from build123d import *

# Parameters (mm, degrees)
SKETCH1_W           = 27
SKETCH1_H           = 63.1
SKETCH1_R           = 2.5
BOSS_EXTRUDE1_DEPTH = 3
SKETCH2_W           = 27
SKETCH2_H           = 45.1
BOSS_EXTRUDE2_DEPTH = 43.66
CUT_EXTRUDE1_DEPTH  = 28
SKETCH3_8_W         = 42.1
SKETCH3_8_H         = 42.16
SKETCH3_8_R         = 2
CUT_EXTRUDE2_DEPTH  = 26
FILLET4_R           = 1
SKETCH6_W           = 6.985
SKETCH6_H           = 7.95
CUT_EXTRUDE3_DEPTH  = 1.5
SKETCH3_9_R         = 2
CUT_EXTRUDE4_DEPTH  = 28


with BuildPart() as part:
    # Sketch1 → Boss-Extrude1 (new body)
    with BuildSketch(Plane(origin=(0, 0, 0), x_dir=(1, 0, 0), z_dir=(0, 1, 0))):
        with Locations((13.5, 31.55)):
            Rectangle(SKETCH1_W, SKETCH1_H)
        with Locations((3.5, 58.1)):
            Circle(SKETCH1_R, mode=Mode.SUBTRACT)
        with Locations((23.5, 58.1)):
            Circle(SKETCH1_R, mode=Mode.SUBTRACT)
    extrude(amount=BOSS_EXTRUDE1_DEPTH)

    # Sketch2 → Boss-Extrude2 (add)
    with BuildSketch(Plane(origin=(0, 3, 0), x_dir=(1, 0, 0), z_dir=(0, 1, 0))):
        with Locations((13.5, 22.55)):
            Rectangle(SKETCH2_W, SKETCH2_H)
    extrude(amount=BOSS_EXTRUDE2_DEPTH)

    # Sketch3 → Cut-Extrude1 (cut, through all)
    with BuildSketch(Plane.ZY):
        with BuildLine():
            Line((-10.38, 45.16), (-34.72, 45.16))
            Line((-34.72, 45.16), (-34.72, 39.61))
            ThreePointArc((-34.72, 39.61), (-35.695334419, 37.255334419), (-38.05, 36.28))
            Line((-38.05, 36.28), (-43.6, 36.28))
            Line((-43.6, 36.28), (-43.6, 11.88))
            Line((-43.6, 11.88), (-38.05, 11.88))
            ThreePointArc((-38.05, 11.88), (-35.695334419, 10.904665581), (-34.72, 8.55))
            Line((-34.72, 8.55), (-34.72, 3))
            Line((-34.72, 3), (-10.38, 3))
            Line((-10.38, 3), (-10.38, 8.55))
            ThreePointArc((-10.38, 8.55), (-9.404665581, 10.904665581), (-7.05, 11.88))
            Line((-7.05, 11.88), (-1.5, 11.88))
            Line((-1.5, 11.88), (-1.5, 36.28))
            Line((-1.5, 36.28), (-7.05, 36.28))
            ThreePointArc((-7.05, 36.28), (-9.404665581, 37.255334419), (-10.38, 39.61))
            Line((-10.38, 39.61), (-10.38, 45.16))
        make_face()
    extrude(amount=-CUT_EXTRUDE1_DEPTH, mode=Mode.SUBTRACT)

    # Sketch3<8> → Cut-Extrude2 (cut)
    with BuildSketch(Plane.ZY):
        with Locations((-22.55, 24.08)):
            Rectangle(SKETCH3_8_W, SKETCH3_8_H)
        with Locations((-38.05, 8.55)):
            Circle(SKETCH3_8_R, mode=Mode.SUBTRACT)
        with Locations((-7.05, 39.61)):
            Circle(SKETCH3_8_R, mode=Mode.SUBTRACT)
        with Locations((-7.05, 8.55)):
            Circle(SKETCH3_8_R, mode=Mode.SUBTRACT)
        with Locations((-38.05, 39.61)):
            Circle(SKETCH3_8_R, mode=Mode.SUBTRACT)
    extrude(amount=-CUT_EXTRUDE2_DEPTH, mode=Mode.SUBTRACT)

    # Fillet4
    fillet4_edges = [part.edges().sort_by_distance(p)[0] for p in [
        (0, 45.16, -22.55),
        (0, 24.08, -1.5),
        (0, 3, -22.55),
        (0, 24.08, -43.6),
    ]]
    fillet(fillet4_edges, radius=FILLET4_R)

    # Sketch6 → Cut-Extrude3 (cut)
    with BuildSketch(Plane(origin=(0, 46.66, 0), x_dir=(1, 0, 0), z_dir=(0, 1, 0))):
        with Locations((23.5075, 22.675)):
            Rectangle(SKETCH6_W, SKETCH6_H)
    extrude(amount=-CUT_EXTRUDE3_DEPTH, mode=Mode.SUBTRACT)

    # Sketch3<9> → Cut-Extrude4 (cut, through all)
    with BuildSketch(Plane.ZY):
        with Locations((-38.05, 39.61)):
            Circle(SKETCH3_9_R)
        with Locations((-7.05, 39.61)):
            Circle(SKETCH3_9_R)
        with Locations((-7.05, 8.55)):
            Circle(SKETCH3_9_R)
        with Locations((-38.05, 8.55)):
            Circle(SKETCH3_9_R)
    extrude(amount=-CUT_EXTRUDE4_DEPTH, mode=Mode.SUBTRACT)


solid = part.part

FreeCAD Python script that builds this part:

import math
import FreeCAD as App
import Part
import Sketcher
from FreeCAD import Vector
Q = App.Units.Quantity


def edges_at(feature, points):
    """Names of the edges that pass closest to the given points."""
    edges = feature.Shape.Edges
    near = lambda p: min(range(len(edges)), key=lambda i: edges[i].distToShape(Part.Vertex(*p))[0])
    return sorted({f"Edge{near(p) + 1}" for p in points})


def add_polygon(sketch, points):
    """Adds a closed chain of lines whose ends are joined by coincident constraints."""
    first, n = sketch.GeometryCount, len(points)
    for a, b in zip(points, points[1:] + points[:1]):
        sketch.addGeometry(Part.LineSegment(App.Vector(*a, 0), App.Vector(*b, 0)), False)
    for i in range(n):
        sketch.addConstraint(Sketcher.Constraint("Coincident", first + i, 2, first + (i + 1) % n, 1))

doc = App.newDocument("Part")
params = doc.addObject("Spreadsheet::Sheet", "Params")
for row, (alias, value) in enumerate([
    ("sketch1_diameter", "5 mm"),
    ("sketch1_width", "27 mm"),
    ("sketch1_height", "63.1 mm"),
    ("pad1_length", "3 mm"),
    ("sketch2_width", "27 mm"),
    ("sketch2_height", "45.1 mm"),
    ("pad2_length", "43.66 mm"),
    ("sketch3_radius", "3.33 mm"),
    ("sketch3_width", "24.4 mm"),
    ("sketch3_width2", "5.55 mm"),
    ("sketch4_diameter", "4 mm"),
    ("sketch4_height", "42.1 mm"),
    ("sketch4_width", "42.16 mm"),
    ("pocket2_length", "26 mm"),
    ("fillet_radius", "1 mm"),
    ("sketch5_height", "7.95 mm"),
    ("pocket3_length", "1.5 mm"),
    ("sketch6_diameter", "4 mm"),
], start=1):
    params.set(f"A{row}", alias)
    params.set(f"B{row}", "=" + value)
    params.setAlias(f"B{row}", alias)

body = doc.addObject("PartDesign::Body", "Body")

sketch1 = body.newObject("Sketcher::SketchObject", "Sketch")
sketch1.AttachmentSupport = (doc.getObject("XZ_Plane"), [""])
sketch1.MapMode = "FlatFace"
add_polygon(sketch1, [(0, -63.1), (0, 0), (27, 0), (27, -63.1)])
sketch1.addGeometry(Part.Circle(Vector(3.5, -58.1, 0), Vector(0, 0, 1), 2.5), False)
sketch1.addGeometry(Part.Circle(Vector(23.5, -58.1, 0), Vector(0, 0, 1), 2.5), False)
sketch1.addConstraint([
    Sketcher.Constraint("Vertical", 0),
    Sketcher.Constraint("Horizontal", 1),
    Sketcher.Constraint("Vertical", 2),
    Sketcher.Constraint("Horizontal", 3),
    Sketcher.Constraint("Coincident", 0, 2, -1, 1),
    Sketcher.Constraint("Equal", 4, 5),
    Sketcher.Constraint("Horizontal", 4, 3, 5, 3),
    Sketcher.Constraint("Diameter", 4, Q("5 mm")),
    Sketcher.Constraint("DistanceX", 1, 1, 1, 2, Q("27 mm")),
    Sketcher.Constraint("DistanceY", 0, 1, 0, 2, Q("63.1 mm")),
    Sketcher.Constraint("DistanceX", 4, 3, 5, 3, Q("20 mm")),
    Sketcher.Constraint("DistanceY", 2, 2, 5, 3, Q("5 mm")),
    Sketcher.Constraint("DistanceX", -1, 1, 4, 3, Q("3.5 mm")),
])
sketch1.setExpression("Constraints[11]", "Params.sketch1_diameter")
sketch1.setExpression("Constraints[12]", "Params.sketch1_width")
sketch1.setExpression("Constraints[13]", "Params.sketch1_height")
pad1 = body.newObject("PartDesign::Pad", "Pad")
pad1.Profile = sketch1
pad1.setExpression("Length", "Params.pad1_length")
pad1.Reversed = True

sketch2 = body.newObject("Sketcher::SketchObject", "Sketch001")
sketch2.AttachmentSupport = (doc.getObject("XZ_Plane"), [""])
sketch2.MapMode = "FlatFace"
sketch2.AttachmentOffset = App.Placement(Vector(0, 0, -3), App.Rotation())
add_polygon(sketch2, [(0, -45.1), (0, 0), (27, 0), (27, -45.1)])
sketch2.addConstraint([
    Sketcher.Constraint("Vertical", 0),
    Sketcher.Constraint("Horizontal", 1),
    Sketcher.Constraint("Vertical", 2),
    Sketcher.Constraint("Horizontal", 3),
    Sketcher.Constraint("Coincident", 0, 2, -1, 1),
    Sketcher.Constraint("DistanceX", 1, 1, 1, 2, Q("27 mm")),
    Sketcher.Constraint("DistanceY", 0, 1, 0, 2, Q("45.1 mm")),
])
sketch2.setExpression("Constraints[9]", "Params.sketch2_width")
sketch2.setExpression("Constraints[10]", "Params.sketch2_height")
pad2 = body.newObject("PartDesign::Pad", "Pad001")
pad2.Profile = sketch2
pad2.setExpression("Length", "Params.pad2_length")
pad2.Reversed = True

sketch3 = body.newObject("Sketcher::SketchObject", "Sketch002")
sketch3.AttachmentSupport = (doc.getObject("YZ_Plane"), [""])
sketch3.MapMode = "FlatFace"
sketch3.addGeometry([
    Part.LineSegment(Vector(45.16, -10.38, 0), Vector(45.16, -34.72, 0)),
    Part.LineSegment(Vector(45.16, -34.72, 0), Vector(39.61, -34.72, 0)),
    Part.ArcOfCircle(Part.Circle(Vector(39.61, -38.05, 0), Vector(0, 0, 1), 3.33), math.radians(90), math.radians(180)),
    Part.LineSegment(Vector(36.28, -38.05, 0), Vector(36.28, -43.6, 0)),
    Part.LineSegment(Vector(36.28, -43.6, 0), Vector(11.88, -43.6, 0)),
    Part.LineSegment(Vector(11.88, -43.6, 0), Vector(11.88, -38.05, 0)),
    Part.ArcOfCircle(Part.Circle(Vector(8.55, -38.05, 0), Vector(0, 0, 1), 3.33), math.radians(0), math.radians(90)),
    Part.LineSegment(Vector(8.55, -34.72, 0), Vector(3, -34.72, 0)),
    Part.LineSegment(Vector(3, -34.72, 0), Vector(3, -10.38, 0)),
    Part.LineSegment(Vector(3, -10.38, 0), Vector(8.55, -10.38, 0)),
    Part.ArcOfCircle(Part.Circle(Vector(8.55, -7.05, 0), Vector(0, 0, 1), 3.33), math.radians(-90), math.radians(0)),
    Part.LineSegment(Vector(11.88, -7.05, 0), Vector(11.88, -1.5, 0)),
    Part.LineSegment(Vector(11.88, -1.5, 0), Vector(36.28, -1.5, 0)),
    Part.LineSegment(Vector(36.28, -1.5, 0), Vector(36.28, -7.05, 0)),
    Part.ArcOfCircle(Part.Circle(Vector(39.61, -7.05, 0), Vector(0, 0, 1), 3.33), math.radians(-180), math.radians(-90)),
    Part.LineSegment(Vector(39.61, -10.38, 0), Vector(45.16, -10.38, 0)),
], False)
sketch3.addConstraint([
    Sketcher.Constraint("Coincident", 0, 2, 1, 1),
    Sketcher.Constraint("Tangent", 1, 2, 2, 1),
    Sketcher.Constraint("Tangent", 2, 2, 3, 1),
    Sketcher.Constraint("Coincident", 3, 2, 4, 1),
    Sketcher.Constraint("Coincident", 4, 2, 5, 1),
    Sketcher.Constraint("Tangent", 5, 2, 6, 1),
    Sketcher.Constraint("Tangent", 6, 2, 7, 1),
    Sketcher.Constraint("Coincident", 7, 2, 8, 1),
    Sketcher.Constraint("Coincident", 8, 2, 9, 1),
    Sketcher.Constraint("Tangent", 9, 2, 10, 1),
    Sketcher.Constraint("Tangent", 10, 2, 11, 1),
    Sketcher.Constraint("Coincident", 11, 2, 12, 1),
    Sketcher.Constraint("Coincident", 12, 2, 13, 1),
    Sketcher.Constraint("Tangent", 13, 2, 14, 1),
    Sketcher.Constraint("Tangent", 14, 2, 15, 1),
    Sketcher.Constraint("Coincident", 15, 2, 0, 1),
    Sketcher.Constraint("Vertical", 0),
    Sketcher.Constraint("Horizontal", 1),
    Sketcher.Constraint("Vertical", 3),
    Sketcher.Constraint("Horizontal", 4),
    Sketcher.Constraint("Vertical", 5),
    Sketcher.Constraint("Horizontal", 7),
    Sketcher.Constraint("Vertical", 8),
    Sketcher.Constraint("Horizontal", 9),
    Sketcher.Constraint("Vertical", 11),
    Sketcher.Constraint("Horizontal", 12),
    Sketcher.Constraint("Vertical", 13),
    Sketcher.Constraint("Horizontal", 15),
    Sketcher.Constraint("Equal", 2, 6),
    Sketcher.Constraint("Equal", 6, 10),
    Sketcher.Constraint("Equal", 10, 14),
    Sketcher.Constraint("Horizontal", 2, 3, 6, 3),
    Sketcher.Constraint("Horizontal", 10, 3, 14, 3),
    Sketcher.Constraint("Vertical", 6, 3, 10, 3),
    Sketcher.Constraint("Vertical", 2, 3, 14, 3),
    Sketcher.Constraint("Equal", 1, 7),
    Sketcher.Constraint("Equal", 15, 3),
    Sketcher.Constraint("Equal", 5, 11),
    Sketcher.Constraint("Radius", 2, Q("3.33 mm")),
    Sketcher.Constraint("DistanceX", 4, 2, 4, 1, Q("24.4 mm")),
    Sketcher.Constraint("DistanceX", -1, 1, 7, 2, Q("3 mm")),
    Sketcher.Constraint("DistanceY", 6, 3, 10, 3, Q("31 mm")),
    Sketcher.Constraint("DistanceX", 1, 2, 1, 1, Q("5.55 mm")),
    Sketcher.Constraint("DistanceY", 3, 2, -1, 1, Q("43.6 mm")),
])
sketch3.setExpression("Constraints[38]", "Params.sketch3_radius")
sketch3.setExpression("Constraints[39]", "Params.sketch3_width")
sketch3.setExpression("Constraints[42]", "Params.sketch3_width2")
pocket1 = body.newObject("PartDesign::Pocket", "Pocket")
pocket1.Profile = sketch3
pocket1.Type = "ThroughAll"
pocket1.Reversed = True

sketch4 = body.newObject("Sketcher::SketchObject", "Sketch003")
sketch4.AttachmentSupport = (doc.getObject("YZ_Plane"), [""])
sketch4.MapMode = "FlatFace"
add_polygon(sketch4, [(45.16, -43.6), (3, -43.6), (3, -1.5), (45.16, -1.5)])
sketch4.addGeometry(Part.Circle(Vector(8.55, -38.05, 0), Vector(0, 0, 1), 2), False)
sketch4.addGeometry(Part.Circle(Vector(8.55, -7.05, 0), Vector(0, 0, 1), 2), False)
sketch4.addGeometry(Part.Circle(Vector(39.61, -38.05, 0), Vector(0, 0, 1), 2), False)
sketch4.addGeometry(Part.Circle(Vector(39.61, -7.05, 0), Vector(0, 0, 1), 2), False)
sketch4.addConstraint([
    Sketcher.Constraint("Horizontal", 0),
    Sketcher.Constraint("Vertical", 1),
    Sketcher.Constraint("Horizontal", 2),
    Sketcher.Constraint("Vertical", 3),
    Sketcher.Constraint("Equal", 4, 5),
    Sketcher.Constraint("Equal", 5, 6),
    Sketcher.Constraint("Equal", 6, 7),
    Sketcher.Constraint("Horizontal", 4, 3, 6, 3),
    Sketcher.Constraint("Horizontal", 5, 3, 7, 3),
    Sketcher.Constraint("Vertical", 4, 3, 5, 3),
    Sketcher.Constraint("Vertical", 6, 3, 7, 3),
    Sketcher.Constraint("Diameter", 4, Q("4 mm")),
    Sketcher.Constraint("DistanceY", 1, 1, 1, 2, Q("42.1 mm")),
    Sketcher.Constraint("DistanceX", -1, 1, 0, 2, Q("3 mm")),
    Sketcher.Constraint("DistanceY", 4, 3, 5, 3, Q("31 mm")),
    Sketcher.Constraint("DistanceX", 0, 2, 0, 1, Q("42.16 mm")),
    Sketcher.Constraint("DistanceY", 0, 2, -1, 1, Q("43.6 mm")),
    Sketcher.Constraint("DistanceX", -1, 1, 4, 3, Q("8.55 mm")),
    Sketcher.Constraint("DistanceY", 4, 3, -1, 1, Q("38.05 mm")),
    Sketcher.Constraint("DistanceX", -1, 1, 6, 3, Q("39.61 mm")),
])
sketch4.setExpression("Constraints[15]", "Params.sketch4_diameter")
sketch4.setExpression("Constraints[16]", "Params.sketch4_height")
sketch4.setExpression("Constraints[19]", "Params.sketch4_width")
pocket2 = body.newObject("PartDesign::Pocket", "Pocket001")
pocket2.Profile = sketch4
pocket2.setExpression("Length", "Params.pocket2_length")
pocket2.Reversed = True
doc.recompute()

fillet = body.newObject("PartDesign::Fillet", "Fillet")
fillet.Base = (pocket2, edges_at(pocket2, [
    (0, 45.16, -22.55),
    (0, 24.08, -1.5),
    (0, 3, -22.55),
    (0, 24.08, -43.6),
]))
fillet.setExpression("Radius", "Params.fillet_radius")

sketch5 = body.newObject("Sketcher::SketchObject", "Sketch004")
sketch5.AttachmentSupport = (doc.getObject("XZ_Plane"), [""])
sketch5.MapMode = "FlatFace"
sketch5.AttachmentOffset = App.Placement(Vector(0, 0, -46.66), App.Rotation())
add_polygon(sketch5, [(20.015, -26.65), (20.015, -18.7), (27, -18.7), (27, -26.65)])
sketch5.addConstraint([
    Sketcher.Constraint("Vertical", 0),
    Sketcher.Constraint("Horizontal", 1),
    Sketcher.Constraint("Vertical", 2),
    Sketcher.Constraint("Horizontal", 3),
    Sketcher.Constraint("DistanceX", -1, 1, 1, 2, Q("27 mm")),
    Sketcher.Constraint("DistanceY", 0, 1, 0, 2, Q("7.95 mm")),
    Sketcher.Constraint("DistanceY", 0, 2, -1, 1, Q("18.7 mm")),
    Sketcher.Constraint("DistanceX", 1, 1, 1, 2, Q("6.985 mm")),
])
sketch5.setExpression("Constraints[9]", "Params.sketch5_height")
pocket3 = body.newObject("PartDesign::Pocket", "Pocket002")
pocket3.Profile = sketch5
pocket3.setExpression("Length", "Params.pocket3_length")
pocket3.Reversed = True

sketch6 = body.newObject("Sketcher::SketchObject", "Sketch005")
sketch6.AttachmentSupport = (doc.getObject("YZ_Plane"), [""])
sketch6.MapMode = "FlatFace"
sketch6.addGeometry([
    Part.Circle(Vector(39.61, -38.05, 0), Vector(0, 0, 1), 2),
    Part.Circle(Vector(39.61, -7.05, 0), Vector(0, 0, 1), 2),
    Part.Circle(Vector(8.55, -7.05, 0), Vector(0, 0, 1), 2),
    Part.Circle(Vector(8.55, -38.05, 0), Vector(0, 0, 1), 2),
], False)
sketch6.addConstraint([
    Sketcher.Constraint("Equal", 0, 1),
    Sketcher.Constraint("Equal", 1, 2),
    Sketcher.Constraint("Equal", 2, 3),
    Sketcher.Constraint("Horizontal", 1, 3, 2, 3),
    Sketcher.Constraint("Horizontal", 0, 3, 3, 3),
    Sketcher.Constraint("Vertical", 0, 3, 1, 3),
    Sketcher.Constraint("Vertical", 2, 3, 3, 3),
    Sketcher.Constraint("Diameter", 0, Q("4 mm")),
    Sketcher.Constraint("DistanceY", 0, 3, 1, 3, Q("31 mm")),
    Sketcher.Constraint("DistanceX", -1, 1, 0, 3, Q("39.61 mm")),
    Sketcher.Constraint("DistanceY", 0, 3, -1, 1, Q("38.05 mm")),
    Sketcher.Constraint("DistanceX", -1, 1, 2, 3, Q("8.55 mm")),
])
sketch6.setExpression("Constraints[7]", "Params.sketch6_diameter")
pocket4 = body.newObject("PartDesign::Pocket", "Pocket003")
pocket4.Profile = sketch6
pocket4.Type = "ThroughAll"
pocket4.Reversed = True

doc.recompute()
